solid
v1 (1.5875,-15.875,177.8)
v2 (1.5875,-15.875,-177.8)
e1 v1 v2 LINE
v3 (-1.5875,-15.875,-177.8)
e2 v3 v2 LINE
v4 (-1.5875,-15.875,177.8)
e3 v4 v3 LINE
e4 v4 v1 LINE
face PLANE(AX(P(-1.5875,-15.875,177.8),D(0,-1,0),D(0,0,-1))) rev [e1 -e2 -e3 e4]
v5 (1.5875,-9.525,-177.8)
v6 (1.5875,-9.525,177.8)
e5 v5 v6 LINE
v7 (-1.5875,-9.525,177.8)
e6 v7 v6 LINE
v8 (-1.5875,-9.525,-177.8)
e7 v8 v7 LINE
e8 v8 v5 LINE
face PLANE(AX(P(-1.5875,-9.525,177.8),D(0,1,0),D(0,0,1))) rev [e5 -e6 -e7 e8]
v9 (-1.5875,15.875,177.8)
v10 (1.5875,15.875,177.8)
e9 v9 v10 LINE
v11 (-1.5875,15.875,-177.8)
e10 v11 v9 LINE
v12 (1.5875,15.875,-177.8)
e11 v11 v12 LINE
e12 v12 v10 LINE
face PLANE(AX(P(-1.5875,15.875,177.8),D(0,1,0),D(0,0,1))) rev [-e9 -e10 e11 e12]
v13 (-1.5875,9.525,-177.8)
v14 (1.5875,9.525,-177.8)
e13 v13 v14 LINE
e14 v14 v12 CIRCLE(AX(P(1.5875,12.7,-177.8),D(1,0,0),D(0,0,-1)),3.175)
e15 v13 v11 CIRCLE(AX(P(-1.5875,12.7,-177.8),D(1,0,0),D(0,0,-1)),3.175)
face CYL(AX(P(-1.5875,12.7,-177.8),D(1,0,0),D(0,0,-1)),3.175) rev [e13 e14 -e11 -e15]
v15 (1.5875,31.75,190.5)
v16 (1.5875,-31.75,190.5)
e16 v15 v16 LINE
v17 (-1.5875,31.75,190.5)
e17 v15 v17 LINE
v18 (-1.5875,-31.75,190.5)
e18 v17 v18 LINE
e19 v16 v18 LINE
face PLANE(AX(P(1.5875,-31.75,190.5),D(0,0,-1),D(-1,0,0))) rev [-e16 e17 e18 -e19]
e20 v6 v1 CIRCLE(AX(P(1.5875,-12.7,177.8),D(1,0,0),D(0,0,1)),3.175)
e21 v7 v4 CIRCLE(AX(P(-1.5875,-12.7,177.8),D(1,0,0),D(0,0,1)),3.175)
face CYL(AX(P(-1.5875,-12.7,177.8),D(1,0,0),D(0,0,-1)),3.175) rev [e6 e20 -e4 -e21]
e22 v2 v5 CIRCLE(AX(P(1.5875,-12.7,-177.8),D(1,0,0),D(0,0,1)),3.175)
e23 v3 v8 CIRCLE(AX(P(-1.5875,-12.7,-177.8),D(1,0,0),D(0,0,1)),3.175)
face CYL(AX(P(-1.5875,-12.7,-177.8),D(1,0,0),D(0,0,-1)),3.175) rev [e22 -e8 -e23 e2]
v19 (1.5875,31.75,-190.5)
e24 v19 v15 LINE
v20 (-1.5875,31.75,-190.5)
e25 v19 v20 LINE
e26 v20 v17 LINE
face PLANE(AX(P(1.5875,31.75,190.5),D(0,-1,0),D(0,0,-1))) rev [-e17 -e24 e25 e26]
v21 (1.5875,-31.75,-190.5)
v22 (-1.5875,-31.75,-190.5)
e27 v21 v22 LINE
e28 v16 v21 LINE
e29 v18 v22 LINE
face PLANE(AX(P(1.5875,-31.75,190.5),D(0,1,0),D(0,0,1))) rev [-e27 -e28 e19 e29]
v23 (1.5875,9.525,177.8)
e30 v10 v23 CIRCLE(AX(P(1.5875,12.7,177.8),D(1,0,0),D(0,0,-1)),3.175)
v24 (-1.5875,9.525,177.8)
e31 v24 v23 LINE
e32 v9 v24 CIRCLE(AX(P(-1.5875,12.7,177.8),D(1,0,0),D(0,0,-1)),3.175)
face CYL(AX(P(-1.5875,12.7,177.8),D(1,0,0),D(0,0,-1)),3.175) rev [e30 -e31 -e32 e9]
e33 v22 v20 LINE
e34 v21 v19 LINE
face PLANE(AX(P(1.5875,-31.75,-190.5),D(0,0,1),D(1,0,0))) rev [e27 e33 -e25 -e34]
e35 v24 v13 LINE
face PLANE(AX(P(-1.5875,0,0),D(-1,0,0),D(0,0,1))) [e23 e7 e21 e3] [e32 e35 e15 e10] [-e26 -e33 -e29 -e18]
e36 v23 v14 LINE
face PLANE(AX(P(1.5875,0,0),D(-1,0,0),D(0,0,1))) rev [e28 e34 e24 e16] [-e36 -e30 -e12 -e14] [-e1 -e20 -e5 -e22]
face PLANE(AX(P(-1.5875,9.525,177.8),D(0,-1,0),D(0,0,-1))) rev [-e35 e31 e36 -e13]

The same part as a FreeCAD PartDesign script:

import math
import FreeCAD as App
import Part
import Sketcher
from FreeCAD import Vector
Q = App.Units.Quantity


def add_polygon(sketch, points):
    """Adds a closed chain of lines whose ends are joined by coincident constraints."""
    first, n = sketch.GeometryCount, len(points)
    for a, b in zip(points, points[1:] + points[:1]):
        sketch.addGeometry(Part.LineSegment(App.Vector(*a, 0), App.Vector(*b, 0)), False)
    for i in range(n):
        sketch.addConstraint(Sketcher.Constraint("Coincident", first + i, 2, first + (i + 1) % n, 1))

doc = App.newDocument("Part")
params = doc.addObject("Spreadsheet::Sheet", "Params")
for row, (alias, value) in enumerate([
    ("sketch1_height", "15 in"),
    ("sketch1_width", "2.5 in"),
    ("pad1_length", "0.125 in"),
    ("sketch2_height", "14 in"),
    ("sketch2_radius", "0.125 in"),
], start=1):
    params.set(f"A{row}", alias)
    params.set(f"B{row}", "=" + value)
    params.setAlias(f"B{row}", alias)

body = doc.addObject("PartDesign::Body", "Body")

# Sketch on YZ plane
sketch1 = doc.addObject("Sketcher::SketchObject", "Sketch")
body.addObject(sketch1)
sketch1.AttachmentSupport = (doc.YZ_Plane, [""])
sketch1.MapMode = "FlatFace"
add_polygon(sketch1, [(31.75, 190.5), (-31.75, 190.5), (-31.75, -190.5), (31.75, -190.5)])  # lines 0-3
sketch1.addConstraint([
    Sketcher.Constraint("Horizontal", 0),
    Sketcher.Constraint("Vertical", 1),
    Sketcher.Constraint("Horizontal", 2),
    Sketcher.Constraint("Vertical", 3),
    Sketcher.Constraint("Symmetric", 0, 2, 2, 2, -1, 1),
    Sketcher.Constraint("DistanceY", 1, 2, 1, 1, Q("15 in")),
    Sketcher.Constraint("DistanceX", 0, 2, 0, 1, Q("2.5 in")),
])
sketch1.setExpression("Constraints[9]", "Params.sketch1_height")
sketch1.setExpression("Constraints[10]", "Params.sketch1_width")
pad1 = doc.addObject("PartDesign::Pad", "Pad")
body.addObject(pad1)
pad1.Profile = sketch1
pad1.setExpression("Length", "Params.pad1_length")
pad1.Midplane = True

# Sketch on YZ plane
sketch2 = doc.addObject("Sketcher::SketchObject", "Sketch001")
body.addObject(sketch2)
sketch2.AttachmentSupport = (doc.YZ_Plane, [""])
sketch2.MapMode = "FlatFace"
sketch2.AttachmentOffset = App.Placement(Vector(0, 0, 0.0625 * 25.4), App.Rotation())
sketch2.addGeometry([
    Part.LineSegment(Vector(15.875, -177.8, 0), Vector(15.875, 177.8, 0)),  # 0
    Part.ArcOfCircle(Part.Circle(Vector(12.7, 177.8, 0), Vector(0, 0, 1), 3.175), math.radians(0), math.radians(180)),  # 1
    Part.LineSegment(Vector(9.525, 177.8, 0), Vector(9.525, -177.8, 0)),  # 2
    Part.ArcOfCircle(Part.Circle(Vector(12.7, -177.8, 0), Vector(0, 0, 1), 3.175), math.radians(180), math.radians(360)),  # 3
    Part.LineSegment(Vector(-15.875, 177.8, 0), Vector(-15.875, -177.8, 0)),  # 4
    Part.ArcOfCircle(Part.Circle(Vector(-12.7, -177.8, 0), Vector(0, 0, 1), 3.175), math.radians(180), math.radians(360)),  # 5
    Part.LineSegment(Vector(-9.525, -177.8, 0), Vector(-9.525, 177.8, 0)),  # 6
    Part.ArcOfCircle(Part.Circle(Vector(-12.7, 177.8, 0), Vector(0, 0, 1), 3.175), math.radians(0), math.radians(180)),  # 7
], False)
sketch2.addConstraint([
    Sketcher.Constraint("Tangent", 0, 2, 1, 1),
    Sketcher.Constraint("Tangent", 1, 2, 2, 1),
    Sketcher.Constraint("Tangent", 2, 2, 3, 1),
    Sketcher.Constraint("Tangent", 3, 2, 0, 1),
    Sketcher.Constraint("Tangent", 4, 2, 5, 1),
    Sketcher.Constraint("Tangent", 5, 2, 6, 1),
    Sketcher.Constraint("Tangent", 6, 2, 7, 1),
    Sketcher.Constraint("Tangent", 7, 2, 4, 1),
    Sketcher.Constraint("Vertical", 0),
    Sketcher.Constraint("Vertical", 2),
    Sketcher.Constraint("Vertical", 4),
    Sketcher.Constraint("Vertical", 6),
    Sketcher.Constraint("Equal", 3, 5),
    Sketcher.Constraint("Symmetric", 1, 3, 5, 3, -1, 1),
    Sketcher.Constraint("Horizontal", 3, 3, 5, 3),
    Sketcher.Constraint("Horizontal", 1, 3, 7, 3),
    Sketcher.Constraint("DistanceY", 0, 1, 0, 2, Q("14 in")),
    Sketcher.Constraint("Radius", 1, Q("0.125 in")),
    Sketcher.Constraint("DistanceX", 5, 3, 3, 3, Q("1 in")),
])
sketch2.setExpression("Constraints[16]", "Params.sketch2_height")
sketch2.setExpression("Constraints[17]", "Params.sketch2_radius")
pocket1 = doc.addObject("PartDesign::Pocket", "Pocket")
body.addObject(pocket1)
pocket1.Profile = sketch2
pocket1.Type = "ThroughAll"

doc.recompute()
